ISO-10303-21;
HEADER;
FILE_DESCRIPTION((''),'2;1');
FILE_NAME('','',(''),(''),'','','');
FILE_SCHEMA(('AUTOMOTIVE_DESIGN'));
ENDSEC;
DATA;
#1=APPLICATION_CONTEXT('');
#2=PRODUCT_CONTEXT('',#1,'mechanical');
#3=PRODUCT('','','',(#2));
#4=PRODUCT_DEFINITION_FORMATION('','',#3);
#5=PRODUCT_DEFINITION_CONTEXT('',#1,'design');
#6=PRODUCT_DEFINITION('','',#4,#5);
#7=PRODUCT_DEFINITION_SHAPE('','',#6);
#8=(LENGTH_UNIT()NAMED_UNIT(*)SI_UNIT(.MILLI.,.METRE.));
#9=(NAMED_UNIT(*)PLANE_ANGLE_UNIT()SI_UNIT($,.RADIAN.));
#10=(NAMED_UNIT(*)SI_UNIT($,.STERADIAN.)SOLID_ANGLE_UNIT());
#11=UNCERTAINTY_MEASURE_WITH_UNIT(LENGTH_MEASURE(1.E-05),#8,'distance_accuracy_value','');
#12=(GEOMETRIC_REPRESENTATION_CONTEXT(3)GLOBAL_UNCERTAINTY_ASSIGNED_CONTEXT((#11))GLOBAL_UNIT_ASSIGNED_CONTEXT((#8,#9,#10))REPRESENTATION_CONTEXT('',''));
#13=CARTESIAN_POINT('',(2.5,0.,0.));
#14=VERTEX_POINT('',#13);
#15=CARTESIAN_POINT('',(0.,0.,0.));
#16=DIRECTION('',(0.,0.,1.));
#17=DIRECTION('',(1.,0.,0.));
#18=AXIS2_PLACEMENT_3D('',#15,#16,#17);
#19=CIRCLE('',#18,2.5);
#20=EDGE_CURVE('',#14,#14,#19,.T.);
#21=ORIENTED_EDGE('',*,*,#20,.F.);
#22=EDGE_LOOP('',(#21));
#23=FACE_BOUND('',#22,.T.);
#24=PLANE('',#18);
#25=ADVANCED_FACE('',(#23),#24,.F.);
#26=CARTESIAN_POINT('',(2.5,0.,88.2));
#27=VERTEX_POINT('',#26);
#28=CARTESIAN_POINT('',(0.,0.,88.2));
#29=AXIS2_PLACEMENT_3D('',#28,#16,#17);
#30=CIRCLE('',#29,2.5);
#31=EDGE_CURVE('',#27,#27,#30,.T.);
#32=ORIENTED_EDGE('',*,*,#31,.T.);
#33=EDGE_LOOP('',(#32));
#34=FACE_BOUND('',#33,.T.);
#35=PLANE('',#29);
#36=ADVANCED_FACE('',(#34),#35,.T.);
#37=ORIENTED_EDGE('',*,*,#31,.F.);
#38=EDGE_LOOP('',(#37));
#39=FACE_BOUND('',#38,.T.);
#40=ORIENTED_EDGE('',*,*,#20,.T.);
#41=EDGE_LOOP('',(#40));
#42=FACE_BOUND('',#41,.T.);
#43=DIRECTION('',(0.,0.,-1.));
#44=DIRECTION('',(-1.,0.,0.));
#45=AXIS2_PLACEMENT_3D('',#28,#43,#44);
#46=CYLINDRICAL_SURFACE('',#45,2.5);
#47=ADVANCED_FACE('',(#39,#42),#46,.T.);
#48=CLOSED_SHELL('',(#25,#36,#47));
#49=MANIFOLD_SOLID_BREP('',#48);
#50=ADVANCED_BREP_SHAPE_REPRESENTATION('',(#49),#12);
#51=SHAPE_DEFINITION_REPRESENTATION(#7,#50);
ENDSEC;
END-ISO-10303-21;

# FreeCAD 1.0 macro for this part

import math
import FreeCAD as App
import Part
import Sketcher
from FreeCAD import Vector
Q = App.Units.Quantity


def add_polygon(sketch, points):
    """Adds a closed chain of lines whose ends are joined by coincident constraints."""
    first, n = sketch.GeometryCount, len(points)
    for a, b in zip(points, points[1:] + points[:1]):
        sketch.addGeometry(Part.LineSegment(App.Vector(*a, 0), App.Vector(*b, 0)), False)
    for i in range(n):
        sketch.addConstraint(Sketcher.Constraint("Coincident", first + i, 2, first + (i + 1) % n, 1))

doc = App.newDocument("Part")
params = doc.addObject("Spreadsheet::Sheet", "Params")
for row, (alias, value) in enumerate([
    ("sketch1_diameter", "5 mm"),
    ("pad1_length", "88.2 mm"),
    ("sketch2_diameter", "25 mm"),
    ("pad2_length", "62 mm"),
    ("sketch3_diameter", "10 mm"),
    ("sketch3_width", "40 mm"),
    ("pad3_length", "3 mm"),
    ("linearpattern_pitch", "59 mm"),
    ("sketch4_diameter", "5 mm"),
    ("sketch4_radius", "12.5 mm"),
], start=1):
    params.set(f"A{row}", alias)
    params.set(f"B{row}", "=" + value)
    params.setAlias(f"B{row}", alias)

body = doc.addObject("PartDesign::Body", "Body")

sketch1 = body.newObject("Sketcher::SketchObject", "Sketch")
sketch1.AttachmentSupport = (doc.getObject("XY_Plane"), [""])
sketch1.MapMode = "FlatFace"
sketch1.addGeometry(Part.Circle(Vector(0, 0, 0), Vector(0, 0, 1), 2.5), False)
sketch1.addConstraint([
    Sketcher.Constraint("Coincident", 0, 3, -1, 1),
    Sketcher.Constraint("Diameter", 0, Q("5 mm")),
])
sketch1.setExpression("Constraints[1]", "Params.sketch1_diameter")
pad1 = body.newObject("PartDesign::Pad", "Pad")
pad1.Profile = sketch1
pad1.setExpression("Length", "Params.pad1_length")

sketch2 = body.newObject("Sketcher::SketchObject", "Sketch001")
sketch2.AttachmentSupport = (doc.getObject("XY_Plane"), [""])
sketch2.MapMode = "FlatFace"
sketch2.AttachmentOffset = App.Placement(Vector(0, 0, 73.2), App.Rotation())
sketch2.addGeometry(Part.Circle(Vector(0, 0, 0), Vector(0, 0, 1), 12), False)
sketch2.addConstraint([
    Sketcher.Constraint("Coincident", 0, 3, -1, 1),
    Sketcher.Constraint("Diameter", 0, Q("25 mm")),
])
sketch2.setExpression("Constraints[1]", "Params.sketch2_diameter")
pad2 = body.newObject("PartDesign::Pad", "Pad001")
pad2.Profile = sketch2
pad2.setExpression("Length", "Params.pad2_length")
pad2.Reversed = True

sketch3 = body.newObject("Sketcher::SketchObject", "Sketch002")
sketch3.AttachmentSupport = (doc.getObject("XY_Plane"), [""])
sketch3.MapMode = "FlatFace"
sketch3.AttachmentOffset = App.Placement(Vector(0, 0, 73.2), App.Rotation())
add_polygon(sketch3, [(0, 9), (0, -9), (40, -9), (40, 9)])
sketch3.addGeometry(Part.Circle(Vector(33, 0, 0), Vector(0, 0, 1), 5), False)
sketch3.addConstraint([
    Sketcher.Constraint("Vertical", 0),
    Sketcher.Constraint("Horizontal", 1),
    Sketcher.Constraint("Vertical", 2),
    Sketcher.Constraint("Horizontal", 3),
    Sketcher.Constraint("Symmetric", 0, 2, 3, 2, -1, 1),
    Sketcher.Constraint("PointOnObject", 4, 3, -1),
    Sketcher.Constraint("Diameter", 4, Q("10 mm")),
    Sketcher.Constraint("DistanceX", 1, 1, 1, 2, Q("40 mm")),
    Sketcher.Constraint("DistanceY", 0, 2, 0, 1, Q("17.730441 mm")),
    Sketcher.Constraint("DistanceX", -1, 1, 4, 3, Q("32.640039 mm")),
])
sketch3.setExpression("Constraints[10]", "Params.sketch3_diameter")
sketch3.setExpression("Constraints[11]", "Params.sketch3_width")
pad3 = body.newObject("PartDesign::Pad", "Pad002")
pad3.Profile = sketch3
pad3.setExpression("Length", "Params.pad3_length")
pad3.Reversed = True
doc.recompute()

linearpattern = body.newObject("PartDesign::LinearPattern", "LinearPattern")
linearpattern.Originals = [pad3]
linearpattern.Direction = (doc.getObject("Z_Axis"), [""])
linearpattern.Mode = "offset"
linearpattern.setExpression("Offset", "Params.linearpattern_pitch")
linearpattern.Occurrences = 2
linearpattern.Reversed = True
body.Tip = linearpattern

sketch4 = body.newObject("Sketcher::SketchObject", "Sketch003")
sketch4.AttachmentSupport = (doc.getObject("XY_Plane"), [""])
sketch4.MapMode = "FlatFace"
sketch4.AttachmentOffset = App.Placement(Vector(0, 0, 88.2), App.Rotation())
sketch4.addGeometry([
    Part.LineSegment(Vector(40, 8.9, 0), Vector(8.8, 8.9, 0)),
    Part.ArcOfCircle(Part.Circle(Vector(0, 0, 0), Vector(0, 0, 1), 12.5), math.radians(45), math.radians(315)),
    Part.LineSegment(Vector(8.8, -8.9, 0), Vector(40, -8.9, 0)),
    Part.LineSegment(Vector(40, -8.9, 0), Vector(40, 8.9, 0)),
    Part.Circle(Vector(0, 0, 0), Vector(0, 0, 1), 2.5),
], False)
sketch4.addConstraint([
    Sketcher.Constraint("Coincident", 0, 2, 1, 1),
    Sketcher.Constraint("Coincident", 1, 2, 2, 1),
    Sketcher.Constraint("Coincident", 2, 2, 3, 1),
    Sketcher.Constraint("Coincident", 3, 2, 0, 1),
    Sketcher.Constraint("Horizontal", 0),
    Sketcher.Constraint("Horizontal", 2),
    Sketcher.Constraint("Vertical", 3),
    Sketcher.Constraint("Coincident", 1, 3, -1, 1),
    Sketcher.Constraint("Coincident", 4, 3, -1, 1),
    Sketcher.Constraint("Vertical", 0, 2, 1, 2),
    Sketcher.Constraint("Diameter", 4, Q("5 mm")),
    Sketcher.Constraint("Radius", 1, Q("12.5 mm")),
    Sketcher.Constraint("DistanceX", -1, 1, 2, 2, Q("40 mm")),
    Sketcher.Constraint("DistanceX", 0, 2, 0, 1, Q("31.18763 mm")),
])
sketch4.setExpression("Constraints[10]", "Params.sketch4_diameter")
sketch4.setExpression("Constraints[11]", "Params.sketch4_radius")
pocket1 = body.newObject("PartDesign::Pocket", "Pocket")
pocket1.Profile = sketch4
pocket1.Type = "ThroughAll"

doc.recompute()
